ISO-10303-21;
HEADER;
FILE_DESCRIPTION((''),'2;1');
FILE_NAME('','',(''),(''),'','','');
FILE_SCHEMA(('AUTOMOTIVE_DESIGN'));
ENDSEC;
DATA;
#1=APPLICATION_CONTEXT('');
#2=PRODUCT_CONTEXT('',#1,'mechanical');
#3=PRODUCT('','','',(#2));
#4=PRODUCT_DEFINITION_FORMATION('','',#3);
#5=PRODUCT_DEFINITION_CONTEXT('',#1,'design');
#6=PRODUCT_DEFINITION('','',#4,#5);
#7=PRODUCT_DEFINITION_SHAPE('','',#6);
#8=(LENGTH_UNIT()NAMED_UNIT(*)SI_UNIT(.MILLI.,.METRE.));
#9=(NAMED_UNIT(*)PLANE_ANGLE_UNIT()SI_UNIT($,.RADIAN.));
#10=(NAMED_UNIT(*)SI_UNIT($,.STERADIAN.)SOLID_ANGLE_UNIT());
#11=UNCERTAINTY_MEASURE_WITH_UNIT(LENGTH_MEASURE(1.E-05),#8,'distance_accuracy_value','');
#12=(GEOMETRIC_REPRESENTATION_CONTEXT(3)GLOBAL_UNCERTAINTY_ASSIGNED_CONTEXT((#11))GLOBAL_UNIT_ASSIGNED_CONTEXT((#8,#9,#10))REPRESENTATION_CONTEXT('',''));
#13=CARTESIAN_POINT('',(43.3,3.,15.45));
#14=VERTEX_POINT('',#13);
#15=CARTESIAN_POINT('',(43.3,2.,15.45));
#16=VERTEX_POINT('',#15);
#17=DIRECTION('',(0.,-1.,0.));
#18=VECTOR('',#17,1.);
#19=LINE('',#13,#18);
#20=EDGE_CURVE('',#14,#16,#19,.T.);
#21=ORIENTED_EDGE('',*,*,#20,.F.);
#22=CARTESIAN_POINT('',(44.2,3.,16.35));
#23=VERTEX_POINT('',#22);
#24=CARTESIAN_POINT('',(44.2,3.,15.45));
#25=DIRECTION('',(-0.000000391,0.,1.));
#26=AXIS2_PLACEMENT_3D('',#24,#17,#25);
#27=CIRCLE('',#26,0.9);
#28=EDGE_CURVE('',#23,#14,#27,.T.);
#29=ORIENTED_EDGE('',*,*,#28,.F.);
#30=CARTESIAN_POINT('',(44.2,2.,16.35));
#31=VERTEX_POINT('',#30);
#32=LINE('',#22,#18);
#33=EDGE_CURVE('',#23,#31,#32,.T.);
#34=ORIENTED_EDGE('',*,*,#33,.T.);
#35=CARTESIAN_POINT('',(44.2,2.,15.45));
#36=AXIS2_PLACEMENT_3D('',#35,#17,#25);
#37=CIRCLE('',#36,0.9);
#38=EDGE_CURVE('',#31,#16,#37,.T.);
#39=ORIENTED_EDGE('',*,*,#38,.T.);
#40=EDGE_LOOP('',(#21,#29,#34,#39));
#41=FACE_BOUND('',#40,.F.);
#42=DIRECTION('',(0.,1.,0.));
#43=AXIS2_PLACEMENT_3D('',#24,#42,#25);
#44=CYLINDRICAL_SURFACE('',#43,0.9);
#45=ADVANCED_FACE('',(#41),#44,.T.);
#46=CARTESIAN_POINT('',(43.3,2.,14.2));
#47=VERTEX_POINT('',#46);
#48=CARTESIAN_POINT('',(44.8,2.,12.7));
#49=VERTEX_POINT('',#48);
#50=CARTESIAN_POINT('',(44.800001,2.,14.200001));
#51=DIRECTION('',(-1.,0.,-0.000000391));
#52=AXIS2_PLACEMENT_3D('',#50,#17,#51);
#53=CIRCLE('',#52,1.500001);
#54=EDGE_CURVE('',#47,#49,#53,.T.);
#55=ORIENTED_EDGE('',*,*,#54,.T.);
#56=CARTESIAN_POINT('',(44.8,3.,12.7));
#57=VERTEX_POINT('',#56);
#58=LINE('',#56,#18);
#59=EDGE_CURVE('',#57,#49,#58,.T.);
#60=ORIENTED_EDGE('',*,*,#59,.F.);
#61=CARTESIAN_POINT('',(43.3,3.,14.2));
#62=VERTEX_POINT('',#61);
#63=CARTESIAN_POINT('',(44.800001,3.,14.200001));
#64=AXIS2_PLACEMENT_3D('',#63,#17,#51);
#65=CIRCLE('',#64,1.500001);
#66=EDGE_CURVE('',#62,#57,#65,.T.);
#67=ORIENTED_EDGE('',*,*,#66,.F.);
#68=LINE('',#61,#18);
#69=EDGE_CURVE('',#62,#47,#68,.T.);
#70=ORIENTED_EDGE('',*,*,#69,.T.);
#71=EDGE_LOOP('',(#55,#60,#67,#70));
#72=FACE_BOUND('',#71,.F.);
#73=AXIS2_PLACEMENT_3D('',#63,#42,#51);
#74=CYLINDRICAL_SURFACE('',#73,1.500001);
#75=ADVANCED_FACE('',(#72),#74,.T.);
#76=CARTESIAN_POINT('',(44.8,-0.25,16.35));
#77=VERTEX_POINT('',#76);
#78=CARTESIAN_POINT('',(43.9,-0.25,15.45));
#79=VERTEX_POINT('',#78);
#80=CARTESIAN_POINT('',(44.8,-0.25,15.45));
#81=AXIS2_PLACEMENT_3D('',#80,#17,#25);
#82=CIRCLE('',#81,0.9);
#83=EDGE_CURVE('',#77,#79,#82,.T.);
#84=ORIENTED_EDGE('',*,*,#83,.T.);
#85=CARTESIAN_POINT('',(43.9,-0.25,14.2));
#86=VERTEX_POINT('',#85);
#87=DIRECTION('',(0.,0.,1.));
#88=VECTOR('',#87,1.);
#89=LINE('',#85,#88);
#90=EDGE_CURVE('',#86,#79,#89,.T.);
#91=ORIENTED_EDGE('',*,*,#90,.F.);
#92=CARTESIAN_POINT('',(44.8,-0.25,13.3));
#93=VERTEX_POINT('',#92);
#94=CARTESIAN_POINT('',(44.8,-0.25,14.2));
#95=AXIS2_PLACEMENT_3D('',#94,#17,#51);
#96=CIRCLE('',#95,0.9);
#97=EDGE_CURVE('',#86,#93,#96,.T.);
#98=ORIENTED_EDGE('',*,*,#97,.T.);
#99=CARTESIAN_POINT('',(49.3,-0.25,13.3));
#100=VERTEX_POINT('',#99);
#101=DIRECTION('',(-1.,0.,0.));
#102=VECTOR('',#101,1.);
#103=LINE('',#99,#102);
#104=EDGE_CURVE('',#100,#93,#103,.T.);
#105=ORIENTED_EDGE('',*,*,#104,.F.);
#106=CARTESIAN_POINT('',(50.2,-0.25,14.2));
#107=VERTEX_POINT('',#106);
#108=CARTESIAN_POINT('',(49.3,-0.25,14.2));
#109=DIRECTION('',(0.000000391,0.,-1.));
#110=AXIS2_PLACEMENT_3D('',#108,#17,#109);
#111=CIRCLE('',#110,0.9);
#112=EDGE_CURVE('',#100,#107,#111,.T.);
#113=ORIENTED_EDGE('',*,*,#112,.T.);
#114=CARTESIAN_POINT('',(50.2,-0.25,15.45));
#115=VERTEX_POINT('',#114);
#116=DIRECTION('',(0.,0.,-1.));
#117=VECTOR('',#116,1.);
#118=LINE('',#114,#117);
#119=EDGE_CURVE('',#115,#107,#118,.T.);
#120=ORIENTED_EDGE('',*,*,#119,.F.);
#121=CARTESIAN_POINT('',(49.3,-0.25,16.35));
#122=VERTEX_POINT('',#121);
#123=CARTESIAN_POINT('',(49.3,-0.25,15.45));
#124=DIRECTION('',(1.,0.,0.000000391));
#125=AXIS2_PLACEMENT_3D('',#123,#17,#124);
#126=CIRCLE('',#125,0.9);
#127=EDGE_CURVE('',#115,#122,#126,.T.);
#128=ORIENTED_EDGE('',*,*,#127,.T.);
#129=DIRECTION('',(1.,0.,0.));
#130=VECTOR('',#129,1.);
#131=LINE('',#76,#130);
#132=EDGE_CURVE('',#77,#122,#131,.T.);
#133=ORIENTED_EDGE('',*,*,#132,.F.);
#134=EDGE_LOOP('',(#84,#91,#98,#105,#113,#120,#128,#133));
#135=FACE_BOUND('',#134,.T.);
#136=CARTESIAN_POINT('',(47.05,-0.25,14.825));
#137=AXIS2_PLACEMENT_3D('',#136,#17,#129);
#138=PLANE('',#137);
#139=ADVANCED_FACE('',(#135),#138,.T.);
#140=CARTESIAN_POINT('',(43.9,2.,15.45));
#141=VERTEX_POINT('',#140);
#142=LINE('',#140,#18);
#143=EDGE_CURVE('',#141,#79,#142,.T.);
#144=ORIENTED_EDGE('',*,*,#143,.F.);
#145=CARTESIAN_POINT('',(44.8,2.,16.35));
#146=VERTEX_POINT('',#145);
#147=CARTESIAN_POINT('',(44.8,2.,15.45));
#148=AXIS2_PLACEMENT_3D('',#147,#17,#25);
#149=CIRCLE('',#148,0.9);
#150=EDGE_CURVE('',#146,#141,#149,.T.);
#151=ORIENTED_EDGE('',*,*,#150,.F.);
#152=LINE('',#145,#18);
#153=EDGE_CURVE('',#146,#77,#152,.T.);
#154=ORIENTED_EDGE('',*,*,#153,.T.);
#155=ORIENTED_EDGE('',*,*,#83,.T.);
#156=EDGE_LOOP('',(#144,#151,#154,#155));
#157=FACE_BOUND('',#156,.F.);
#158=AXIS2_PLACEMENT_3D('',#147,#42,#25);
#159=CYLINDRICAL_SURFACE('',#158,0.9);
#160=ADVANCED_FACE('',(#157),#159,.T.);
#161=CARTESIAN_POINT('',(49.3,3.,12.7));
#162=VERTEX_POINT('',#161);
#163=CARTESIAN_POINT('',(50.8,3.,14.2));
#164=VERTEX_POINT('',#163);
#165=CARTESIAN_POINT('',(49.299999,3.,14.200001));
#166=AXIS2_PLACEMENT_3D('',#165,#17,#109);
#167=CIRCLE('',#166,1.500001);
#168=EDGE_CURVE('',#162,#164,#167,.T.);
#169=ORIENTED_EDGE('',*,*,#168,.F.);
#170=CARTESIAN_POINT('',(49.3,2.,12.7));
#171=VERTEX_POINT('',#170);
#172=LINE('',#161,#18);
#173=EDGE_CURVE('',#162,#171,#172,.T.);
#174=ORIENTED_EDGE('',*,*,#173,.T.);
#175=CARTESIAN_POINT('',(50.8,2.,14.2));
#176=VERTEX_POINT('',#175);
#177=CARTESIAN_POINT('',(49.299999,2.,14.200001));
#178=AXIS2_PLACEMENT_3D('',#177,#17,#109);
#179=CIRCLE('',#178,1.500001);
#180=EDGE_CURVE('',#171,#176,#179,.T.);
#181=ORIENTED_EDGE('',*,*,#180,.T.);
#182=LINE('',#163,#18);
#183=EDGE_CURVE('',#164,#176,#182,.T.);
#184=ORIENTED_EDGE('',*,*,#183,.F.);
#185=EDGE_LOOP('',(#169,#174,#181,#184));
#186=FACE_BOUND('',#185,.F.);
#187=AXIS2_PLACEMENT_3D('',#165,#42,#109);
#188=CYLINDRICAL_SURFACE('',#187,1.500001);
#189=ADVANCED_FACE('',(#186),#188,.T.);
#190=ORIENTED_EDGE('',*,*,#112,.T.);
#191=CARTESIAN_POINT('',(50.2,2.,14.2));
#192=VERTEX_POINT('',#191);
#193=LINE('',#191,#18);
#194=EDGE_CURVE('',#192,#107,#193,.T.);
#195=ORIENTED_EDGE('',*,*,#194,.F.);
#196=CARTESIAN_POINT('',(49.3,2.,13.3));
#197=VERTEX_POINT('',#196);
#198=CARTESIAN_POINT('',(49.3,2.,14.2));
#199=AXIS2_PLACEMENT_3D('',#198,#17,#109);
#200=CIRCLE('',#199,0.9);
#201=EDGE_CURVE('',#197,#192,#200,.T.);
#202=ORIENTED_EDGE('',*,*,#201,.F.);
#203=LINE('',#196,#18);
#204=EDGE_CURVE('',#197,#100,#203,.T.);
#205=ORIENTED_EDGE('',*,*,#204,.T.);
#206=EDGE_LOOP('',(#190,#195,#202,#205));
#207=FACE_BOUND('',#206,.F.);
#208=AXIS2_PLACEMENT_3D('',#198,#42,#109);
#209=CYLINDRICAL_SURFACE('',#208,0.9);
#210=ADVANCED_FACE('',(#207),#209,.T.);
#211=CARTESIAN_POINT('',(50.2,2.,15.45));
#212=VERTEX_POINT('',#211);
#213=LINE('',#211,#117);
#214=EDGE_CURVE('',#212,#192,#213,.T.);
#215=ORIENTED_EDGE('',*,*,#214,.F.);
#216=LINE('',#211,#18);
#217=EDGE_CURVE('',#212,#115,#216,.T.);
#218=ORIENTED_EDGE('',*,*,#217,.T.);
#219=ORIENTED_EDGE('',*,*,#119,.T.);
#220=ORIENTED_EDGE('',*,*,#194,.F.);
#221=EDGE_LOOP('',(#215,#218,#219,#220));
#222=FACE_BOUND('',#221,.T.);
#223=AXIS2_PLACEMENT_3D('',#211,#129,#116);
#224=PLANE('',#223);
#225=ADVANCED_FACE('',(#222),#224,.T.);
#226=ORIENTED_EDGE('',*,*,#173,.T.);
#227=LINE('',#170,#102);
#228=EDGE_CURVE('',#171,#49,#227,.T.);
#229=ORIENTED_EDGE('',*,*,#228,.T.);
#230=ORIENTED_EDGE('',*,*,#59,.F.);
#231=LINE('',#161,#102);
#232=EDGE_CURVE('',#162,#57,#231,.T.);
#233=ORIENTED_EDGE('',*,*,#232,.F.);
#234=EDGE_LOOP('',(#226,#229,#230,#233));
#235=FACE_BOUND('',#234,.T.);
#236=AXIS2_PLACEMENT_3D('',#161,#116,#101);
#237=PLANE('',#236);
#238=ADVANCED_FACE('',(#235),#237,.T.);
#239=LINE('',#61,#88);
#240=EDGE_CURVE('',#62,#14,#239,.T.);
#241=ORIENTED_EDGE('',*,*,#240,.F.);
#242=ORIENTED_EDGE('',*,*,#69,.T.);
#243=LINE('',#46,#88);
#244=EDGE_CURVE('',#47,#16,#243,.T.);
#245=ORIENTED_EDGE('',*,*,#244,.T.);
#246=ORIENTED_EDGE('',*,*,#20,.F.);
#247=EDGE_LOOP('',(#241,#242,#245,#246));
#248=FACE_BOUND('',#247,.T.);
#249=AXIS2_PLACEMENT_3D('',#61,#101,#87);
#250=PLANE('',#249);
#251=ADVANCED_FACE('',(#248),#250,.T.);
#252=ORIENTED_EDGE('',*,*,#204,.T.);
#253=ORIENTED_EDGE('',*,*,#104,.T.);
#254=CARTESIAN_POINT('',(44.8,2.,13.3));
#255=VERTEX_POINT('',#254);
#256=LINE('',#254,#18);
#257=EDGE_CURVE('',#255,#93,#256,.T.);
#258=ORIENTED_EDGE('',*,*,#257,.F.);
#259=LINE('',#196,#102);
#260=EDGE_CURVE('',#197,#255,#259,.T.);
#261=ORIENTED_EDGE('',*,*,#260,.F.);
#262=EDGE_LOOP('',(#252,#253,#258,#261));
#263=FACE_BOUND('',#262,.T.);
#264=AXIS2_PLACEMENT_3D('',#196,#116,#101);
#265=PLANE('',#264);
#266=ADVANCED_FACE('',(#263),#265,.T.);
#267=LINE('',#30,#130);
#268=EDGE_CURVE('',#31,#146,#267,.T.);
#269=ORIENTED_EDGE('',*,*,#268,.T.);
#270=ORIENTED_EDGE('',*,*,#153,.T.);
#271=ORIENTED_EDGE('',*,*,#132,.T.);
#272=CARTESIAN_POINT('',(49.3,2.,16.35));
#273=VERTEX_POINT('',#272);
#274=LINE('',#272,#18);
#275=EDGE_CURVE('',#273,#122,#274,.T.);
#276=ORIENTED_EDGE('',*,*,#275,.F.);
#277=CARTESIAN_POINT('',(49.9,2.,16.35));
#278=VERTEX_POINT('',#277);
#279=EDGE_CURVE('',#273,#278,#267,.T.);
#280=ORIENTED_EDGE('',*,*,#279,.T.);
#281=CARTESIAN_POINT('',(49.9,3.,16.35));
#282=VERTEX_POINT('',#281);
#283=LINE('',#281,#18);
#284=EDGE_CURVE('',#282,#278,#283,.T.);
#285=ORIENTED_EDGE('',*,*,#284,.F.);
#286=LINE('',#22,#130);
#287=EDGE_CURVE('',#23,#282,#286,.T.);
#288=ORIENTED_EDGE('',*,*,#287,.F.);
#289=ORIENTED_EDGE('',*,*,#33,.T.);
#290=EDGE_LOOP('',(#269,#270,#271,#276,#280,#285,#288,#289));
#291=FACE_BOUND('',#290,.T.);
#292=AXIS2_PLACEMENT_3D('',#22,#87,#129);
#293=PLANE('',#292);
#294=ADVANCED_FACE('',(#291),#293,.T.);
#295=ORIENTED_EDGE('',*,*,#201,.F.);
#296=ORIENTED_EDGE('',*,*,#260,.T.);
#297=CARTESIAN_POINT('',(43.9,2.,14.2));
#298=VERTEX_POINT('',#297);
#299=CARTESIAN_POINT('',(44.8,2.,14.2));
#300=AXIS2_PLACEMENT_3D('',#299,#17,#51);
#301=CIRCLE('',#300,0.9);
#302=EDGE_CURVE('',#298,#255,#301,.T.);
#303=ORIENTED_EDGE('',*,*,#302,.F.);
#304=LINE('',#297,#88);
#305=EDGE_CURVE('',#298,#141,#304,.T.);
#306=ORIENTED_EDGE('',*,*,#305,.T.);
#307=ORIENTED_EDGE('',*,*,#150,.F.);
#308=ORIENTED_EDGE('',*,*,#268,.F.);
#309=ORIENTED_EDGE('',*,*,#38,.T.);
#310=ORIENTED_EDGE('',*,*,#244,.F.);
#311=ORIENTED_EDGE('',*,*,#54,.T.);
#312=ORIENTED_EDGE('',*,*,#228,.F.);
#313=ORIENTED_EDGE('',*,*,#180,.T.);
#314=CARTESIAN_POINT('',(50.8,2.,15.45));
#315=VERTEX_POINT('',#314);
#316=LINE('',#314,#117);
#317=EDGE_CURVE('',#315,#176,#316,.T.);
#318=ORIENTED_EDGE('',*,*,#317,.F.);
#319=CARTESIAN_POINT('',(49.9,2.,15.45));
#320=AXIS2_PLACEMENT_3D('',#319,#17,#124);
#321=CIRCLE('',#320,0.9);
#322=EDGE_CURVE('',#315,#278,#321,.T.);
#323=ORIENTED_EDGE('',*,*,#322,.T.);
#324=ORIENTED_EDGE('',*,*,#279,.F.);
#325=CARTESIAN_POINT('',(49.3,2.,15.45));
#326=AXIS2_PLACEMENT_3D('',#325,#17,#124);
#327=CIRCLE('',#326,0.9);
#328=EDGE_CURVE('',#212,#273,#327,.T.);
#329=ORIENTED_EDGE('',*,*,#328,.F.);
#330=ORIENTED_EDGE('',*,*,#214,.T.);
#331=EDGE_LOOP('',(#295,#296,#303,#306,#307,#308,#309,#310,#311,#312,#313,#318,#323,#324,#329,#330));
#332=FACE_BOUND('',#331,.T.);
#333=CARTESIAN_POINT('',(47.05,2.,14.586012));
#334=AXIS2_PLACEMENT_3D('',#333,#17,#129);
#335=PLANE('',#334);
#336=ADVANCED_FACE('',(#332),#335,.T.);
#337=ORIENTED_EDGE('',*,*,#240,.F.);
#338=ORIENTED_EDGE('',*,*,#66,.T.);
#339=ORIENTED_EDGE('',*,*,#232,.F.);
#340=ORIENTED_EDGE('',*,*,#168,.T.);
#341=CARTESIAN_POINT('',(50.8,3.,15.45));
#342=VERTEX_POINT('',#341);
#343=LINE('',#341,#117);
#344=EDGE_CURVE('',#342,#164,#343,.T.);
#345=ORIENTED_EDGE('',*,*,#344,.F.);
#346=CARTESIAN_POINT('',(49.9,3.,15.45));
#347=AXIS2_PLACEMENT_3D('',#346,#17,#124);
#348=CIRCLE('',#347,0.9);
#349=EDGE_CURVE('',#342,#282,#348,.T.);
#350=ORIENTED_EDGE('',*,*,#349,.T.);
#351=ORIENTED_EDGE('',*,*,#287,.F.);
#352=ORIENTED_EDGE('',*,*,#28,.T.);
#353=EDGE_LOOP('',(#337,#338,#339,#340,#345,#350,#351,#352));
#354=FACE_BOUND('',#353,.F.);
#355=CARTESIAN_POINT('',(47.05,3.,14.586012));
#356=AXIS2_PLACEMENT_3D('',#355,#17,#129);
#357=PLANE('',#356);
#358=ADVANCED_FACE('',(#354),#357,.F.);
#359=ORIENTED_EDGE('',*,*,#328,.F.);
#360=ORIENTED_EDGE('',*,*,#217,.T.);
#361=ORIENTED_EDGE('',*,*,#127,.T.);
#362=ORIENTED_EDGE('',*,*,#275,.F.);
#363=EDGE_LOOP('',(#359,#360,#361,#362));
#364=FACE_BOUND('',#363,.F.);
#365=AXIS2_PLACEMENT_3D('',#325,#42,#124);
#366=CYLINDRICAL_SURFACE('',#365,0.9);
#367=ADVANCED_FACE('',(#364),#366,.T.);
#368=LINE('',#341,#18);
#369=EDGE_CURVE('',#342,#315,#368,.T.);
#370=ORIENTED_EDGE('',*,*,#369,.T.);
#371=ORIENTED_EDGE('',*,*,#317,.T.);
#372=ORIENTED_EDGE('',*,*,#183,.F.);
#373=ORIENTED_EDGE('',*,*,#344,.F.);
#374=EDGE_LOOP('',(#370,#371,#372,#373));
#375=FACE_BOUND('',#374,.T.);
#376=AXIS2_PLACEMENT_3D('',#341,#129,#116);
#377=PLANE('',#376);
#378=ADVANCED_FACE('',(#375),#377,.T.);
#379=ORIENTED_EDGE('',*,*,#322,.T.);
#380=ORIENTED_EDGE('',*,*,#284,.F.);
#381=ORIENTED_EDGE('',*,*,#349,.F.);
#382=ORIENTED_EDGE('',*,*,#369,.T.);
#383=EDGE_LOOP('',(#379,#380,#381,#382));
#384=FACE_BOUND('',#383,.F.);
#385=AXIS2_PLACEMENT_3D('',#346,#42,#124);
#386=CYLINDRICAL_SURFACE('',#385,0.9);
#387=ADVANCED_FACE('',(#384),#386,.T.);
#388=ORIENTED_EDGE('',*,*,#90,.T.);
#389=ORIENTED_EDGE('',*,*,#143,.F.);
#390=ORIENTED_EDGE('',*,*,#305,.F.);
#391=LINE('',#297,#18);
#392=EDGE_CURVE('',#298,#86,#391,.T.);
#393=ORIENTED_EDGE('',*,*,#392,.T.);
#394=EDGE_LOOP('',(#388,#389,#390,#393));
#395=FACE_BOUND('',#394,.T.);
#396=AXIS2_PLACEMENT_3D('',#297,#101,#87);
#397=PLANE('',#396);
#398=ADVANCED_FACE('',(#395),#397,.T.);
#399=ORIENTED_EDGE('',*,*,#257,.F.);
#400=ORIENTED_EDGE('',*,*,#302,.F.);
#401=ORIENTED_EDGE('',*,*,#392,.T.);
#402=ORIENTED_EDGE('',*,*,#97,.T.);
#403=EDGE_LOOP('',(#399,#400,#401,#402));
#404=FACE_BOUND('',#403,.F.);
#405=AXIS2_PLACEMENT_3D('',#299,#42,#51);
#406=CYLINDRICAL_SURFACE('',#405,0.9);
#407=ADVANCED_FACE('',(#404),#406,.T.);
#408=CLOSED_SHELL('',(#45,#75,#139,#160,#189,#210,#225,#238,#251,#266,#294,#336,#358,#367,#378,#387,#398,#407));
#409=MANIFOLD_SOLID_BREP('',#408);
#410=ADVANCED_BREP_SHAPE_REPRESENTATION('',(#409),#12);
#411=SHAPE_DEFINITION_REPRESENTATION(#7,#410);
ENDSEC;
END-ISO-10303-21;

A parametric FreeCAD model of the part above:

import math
import FreeCAD as App
import Part
import Sketcher
Q = App.Units.Quantity

doc = App.newDocument("Part")
body = doc.addObject("PartDesign::Body", "Body")

sketch1 = body.newObject("Sketcher::SketchObject", "Sketch")
sketch1.AttachmentSupport = (doc.getObject("XZ_Plane"), [""])
sketch1.MapMode = "FlatFace"
sketch1.addGeometry([
    Part.ArcOfCircle(Part.Circle(App.Vector(11.7, 15.4, 0), App.Vector(0, 0, 1), 0.9), math.radians(90), math.radians(180)),
    Part.LineSegment(App.Vector(10.8, 15.4, 0), App.Vector(10.8, 14.2, 0)),
    Part.ArcOfCircle(Part.Circle(App.Vector(12.3, 14.2, 0), App.Vector(0, 0, 1), 1.5), math.radians(-180), math.radians(-90)),
    Part.LineSegment(App.Vector(12.3, 12.7, 0), App.Vector(16.8, 12.7, 0)),
    Part.ArcOfCircle(Part.Circle(App.Vector(16.8, 14.2, 0), App.Vector(0, 0, 1), 1.5), math.radians(-90), math.radians(0)),
    Part.LineSegment(App.Vector(18.3, 14.2, 0), App.Vector(18.3, 15.4, 0)),
    Part.ArcOfCircle(Part.Circle(App.Vector(17.4, 15.4, 0), App.Vector(0, 0, 1), 0.9), math.radians(0), math.radians(90)),
    Part.LineSegment(App.Vector(17.4, 16.4, 0), App.Vector(11.7, 16.4, 0)),
], False)
sketch1.addConstraint([
    Sketcher.Constraint("Tangent", 0, 2, 1, 1),
    Sketcher.Constraint("Tangent", 1, 2, 2, 1),
    Sketcher.Constraint("Tangent", 2, 2, 3, 1),
    Sketcher.Constraint("Tangent", 3, 2, 4, 1),
    Sketcher.Constraint("Tangent", 4, 2, 5, 1),
    Sketcher.Constraint("Tangent", 5, 2, 6, 1),
    Sketcher.Constraint("Tangent", 6, 2, 7, 1),
    Sketcher.Constraint("Tangent", 7, 2, 0, 1),
    Sketcher.Constraint("Vertical", 1),
    Sketcher.Constraint("Horizontal", 3),
    Sketcher.Constraint("Vertical", 5),
    Sketcher.Constraint("Horizontal", 7),
    Sketcher.Constraint("Equal", 2, 4),
    Sketcher.Constraint("Equal", 0, 6),
    Sketcher.Constraint("Radius", 0, Q("0.9 mm")),
    Sketcher.Constraint("Radius", 2, Q("1.500001 mm")),
    Sketcher.Constraint("DistanceX", 3, 1, 3, 2, Q("4.5 mm")),
    Sketcher.Constraint("DistanceY", 1, 2, 1, 1, Q("1.25 mm")),
    Sketcher.Constraint("DistanceX", -1, 1, 0, 3, Q("11.7 mm")),
    Sketcher.Constraint("DistanceY", -1, 1, 2, 3, Q("14.200001 mm")),
])
pad1 = body.newObject("PartDesign::Pad", "Pad")
pad1.Profile = sketch1
pad1.Length = 1
body2 = doc.addObject("PartDesign::Body", "Body001")
doc.recompute()

body.Placement = App.Placement(App.Vector(0, 3, 0), App.Rotation(App.Vector(0, 0, 1), 0))
boolean = body2.newObject("PartDesign::Boolean", "Boolean")
boolean.Type = "Fuse"
boolean.addObjects([body])
body3 = doc.addObject("PartDesign::Body", "Body002")

sketch2 = body3.newObject("Sketcher::SketchObject", "Sketch001")
sketch2.AttachmentSupport = (doc.getObject("XZ_Plane002"), [""])
sketch2.MapMode = "FlatFace"
sketch2.addGeometry([
    Part.ArcOfCircle(Part.Circle(App.Vector(12.3, 15.4, 0), App.Vector(0, 0, 1), 0.9), math.radians(90), math.radians(180)),
    Part.LineSegment(App.Vector(11.4, 15.4, 0), App.Vector(11.4, 14.2, 0)),
    Part.ArcOfCircle(Part.Circle(App.Vector(12.3, 14.2, 0), App.Vector(0, 0, 1), 0.9), math.radians(-180), math.radians(-90)),
    Part.LineSegment(App.Vector(12.3, 13.3, 0), App.Vector(16.8, 13.3, 0)),
    Part.ArcOfCircle(Part.Circle(App.Vector(16.8, 14.2, 0), App.Vector(0, 0, 1), 0.9), math.radians(-90), math.radians(0)),
    Part.LineSegment(App.Vector(17.7, 14.2, 0), App.Vector(17.7, 15.4, 0)),
    Part.ArcOfCircle(Part.Circle(App.Vector(16.8, 15.4, 0), App.Vector(0, 0, 1), 0.9), math.radians(0), math.radians(90)),
    Part.LineSegment(App.Vector(16.8, 16.4, 0), App.Vector(12.3, 16.4, 0)),
], False)
sketch2.addConstraint([
    Sketcher.Constraint("Tangent", 0, 2, 1, 1),
    Sketcher.Constraint("Tangent", 1, 2, 2, 1),
    Sketcher.Constraint("Tangent", 2, 2, 3, 1),
    Sketcher.Constraint("Tangent", 3, 2, 4, 1),
    Sketcher.Constraint("Tangent", 4, 2, 5, 1),
    Sketcher.Constraint("Tangent", 5, 2, 6, 1),
    Sketcher.Constraint("Tangent", 6, 2, 7, 1),
    Sketcher.Constraint("Tangent", 7, 2, 0, 1),
    Sketcher.Constraint("Vertical", 1),
    Sketcher.Constraint("Horizontal", 3),
    Sketcher.Constraint("Vertical", 5),
    Sketcher.Constraint("Horizontal", 7),
    Sketcher.Constraint("Equal", 0, 2),
    Sketcher.Constraint("Equal", 2, 4),
    Sketcher.Constraint("Equal", 4, 6),
    Sketcher.Constraint("Radius", 0, Q("0.9 mm")),
    Sketcher.Constraint("DistanceX", 3, 1, 3, 2, Q("4.5 mm")),
    Sketcher.Constraint("DistanceY", 1, 2, 1, 1, Q("1.25 mm")),
    Sketcher.Constraint("DistanceX", -1, 1, 0, 3, Q("12.3 mm")),
    Sketcher.Constraint("DistanceY", -1, 1, 2, 3, Q("14.2 mm")),
])
pad2 = body3.newObject("PartDesign::Pad", "Pad001")
pad2.Profile = sketch2
pad2.Length = 2.25
body4 = doc.addObject("PartDesign::Body", "Body003")
doc.recompute()

body3.Placement = App.Placement(App.Vector(0, 2, 0), App.Rotation(App.Vector(0, 0, 1), 0))
boolean2 = body4.newObject("PartDesign::Boolean", "Boolean001")
boolean2.Type = "Fuse"
boolean2.addObjects([body3])
doc.recompute()

boolean3 = body4.newObject("PartDesign::Boolean", "Boolean002")
boolean3.Type = "Fuse"
boolean3.addObjects([body2])
body5 = doc.addObject("PartDesign::Body", "Body004")
doc.recompute()

body4.Placement = App.Placement(App.Vector(32.5, 0, 0), App.Rotation(App.Vector(0, 0, 1), 0))
boolean4 = body5.newObject("PartDesign::Boolean", "Boolean003")
boolean4.Type = "Fuse"
boolean4.addObjects([body4])

doc.recompute()
